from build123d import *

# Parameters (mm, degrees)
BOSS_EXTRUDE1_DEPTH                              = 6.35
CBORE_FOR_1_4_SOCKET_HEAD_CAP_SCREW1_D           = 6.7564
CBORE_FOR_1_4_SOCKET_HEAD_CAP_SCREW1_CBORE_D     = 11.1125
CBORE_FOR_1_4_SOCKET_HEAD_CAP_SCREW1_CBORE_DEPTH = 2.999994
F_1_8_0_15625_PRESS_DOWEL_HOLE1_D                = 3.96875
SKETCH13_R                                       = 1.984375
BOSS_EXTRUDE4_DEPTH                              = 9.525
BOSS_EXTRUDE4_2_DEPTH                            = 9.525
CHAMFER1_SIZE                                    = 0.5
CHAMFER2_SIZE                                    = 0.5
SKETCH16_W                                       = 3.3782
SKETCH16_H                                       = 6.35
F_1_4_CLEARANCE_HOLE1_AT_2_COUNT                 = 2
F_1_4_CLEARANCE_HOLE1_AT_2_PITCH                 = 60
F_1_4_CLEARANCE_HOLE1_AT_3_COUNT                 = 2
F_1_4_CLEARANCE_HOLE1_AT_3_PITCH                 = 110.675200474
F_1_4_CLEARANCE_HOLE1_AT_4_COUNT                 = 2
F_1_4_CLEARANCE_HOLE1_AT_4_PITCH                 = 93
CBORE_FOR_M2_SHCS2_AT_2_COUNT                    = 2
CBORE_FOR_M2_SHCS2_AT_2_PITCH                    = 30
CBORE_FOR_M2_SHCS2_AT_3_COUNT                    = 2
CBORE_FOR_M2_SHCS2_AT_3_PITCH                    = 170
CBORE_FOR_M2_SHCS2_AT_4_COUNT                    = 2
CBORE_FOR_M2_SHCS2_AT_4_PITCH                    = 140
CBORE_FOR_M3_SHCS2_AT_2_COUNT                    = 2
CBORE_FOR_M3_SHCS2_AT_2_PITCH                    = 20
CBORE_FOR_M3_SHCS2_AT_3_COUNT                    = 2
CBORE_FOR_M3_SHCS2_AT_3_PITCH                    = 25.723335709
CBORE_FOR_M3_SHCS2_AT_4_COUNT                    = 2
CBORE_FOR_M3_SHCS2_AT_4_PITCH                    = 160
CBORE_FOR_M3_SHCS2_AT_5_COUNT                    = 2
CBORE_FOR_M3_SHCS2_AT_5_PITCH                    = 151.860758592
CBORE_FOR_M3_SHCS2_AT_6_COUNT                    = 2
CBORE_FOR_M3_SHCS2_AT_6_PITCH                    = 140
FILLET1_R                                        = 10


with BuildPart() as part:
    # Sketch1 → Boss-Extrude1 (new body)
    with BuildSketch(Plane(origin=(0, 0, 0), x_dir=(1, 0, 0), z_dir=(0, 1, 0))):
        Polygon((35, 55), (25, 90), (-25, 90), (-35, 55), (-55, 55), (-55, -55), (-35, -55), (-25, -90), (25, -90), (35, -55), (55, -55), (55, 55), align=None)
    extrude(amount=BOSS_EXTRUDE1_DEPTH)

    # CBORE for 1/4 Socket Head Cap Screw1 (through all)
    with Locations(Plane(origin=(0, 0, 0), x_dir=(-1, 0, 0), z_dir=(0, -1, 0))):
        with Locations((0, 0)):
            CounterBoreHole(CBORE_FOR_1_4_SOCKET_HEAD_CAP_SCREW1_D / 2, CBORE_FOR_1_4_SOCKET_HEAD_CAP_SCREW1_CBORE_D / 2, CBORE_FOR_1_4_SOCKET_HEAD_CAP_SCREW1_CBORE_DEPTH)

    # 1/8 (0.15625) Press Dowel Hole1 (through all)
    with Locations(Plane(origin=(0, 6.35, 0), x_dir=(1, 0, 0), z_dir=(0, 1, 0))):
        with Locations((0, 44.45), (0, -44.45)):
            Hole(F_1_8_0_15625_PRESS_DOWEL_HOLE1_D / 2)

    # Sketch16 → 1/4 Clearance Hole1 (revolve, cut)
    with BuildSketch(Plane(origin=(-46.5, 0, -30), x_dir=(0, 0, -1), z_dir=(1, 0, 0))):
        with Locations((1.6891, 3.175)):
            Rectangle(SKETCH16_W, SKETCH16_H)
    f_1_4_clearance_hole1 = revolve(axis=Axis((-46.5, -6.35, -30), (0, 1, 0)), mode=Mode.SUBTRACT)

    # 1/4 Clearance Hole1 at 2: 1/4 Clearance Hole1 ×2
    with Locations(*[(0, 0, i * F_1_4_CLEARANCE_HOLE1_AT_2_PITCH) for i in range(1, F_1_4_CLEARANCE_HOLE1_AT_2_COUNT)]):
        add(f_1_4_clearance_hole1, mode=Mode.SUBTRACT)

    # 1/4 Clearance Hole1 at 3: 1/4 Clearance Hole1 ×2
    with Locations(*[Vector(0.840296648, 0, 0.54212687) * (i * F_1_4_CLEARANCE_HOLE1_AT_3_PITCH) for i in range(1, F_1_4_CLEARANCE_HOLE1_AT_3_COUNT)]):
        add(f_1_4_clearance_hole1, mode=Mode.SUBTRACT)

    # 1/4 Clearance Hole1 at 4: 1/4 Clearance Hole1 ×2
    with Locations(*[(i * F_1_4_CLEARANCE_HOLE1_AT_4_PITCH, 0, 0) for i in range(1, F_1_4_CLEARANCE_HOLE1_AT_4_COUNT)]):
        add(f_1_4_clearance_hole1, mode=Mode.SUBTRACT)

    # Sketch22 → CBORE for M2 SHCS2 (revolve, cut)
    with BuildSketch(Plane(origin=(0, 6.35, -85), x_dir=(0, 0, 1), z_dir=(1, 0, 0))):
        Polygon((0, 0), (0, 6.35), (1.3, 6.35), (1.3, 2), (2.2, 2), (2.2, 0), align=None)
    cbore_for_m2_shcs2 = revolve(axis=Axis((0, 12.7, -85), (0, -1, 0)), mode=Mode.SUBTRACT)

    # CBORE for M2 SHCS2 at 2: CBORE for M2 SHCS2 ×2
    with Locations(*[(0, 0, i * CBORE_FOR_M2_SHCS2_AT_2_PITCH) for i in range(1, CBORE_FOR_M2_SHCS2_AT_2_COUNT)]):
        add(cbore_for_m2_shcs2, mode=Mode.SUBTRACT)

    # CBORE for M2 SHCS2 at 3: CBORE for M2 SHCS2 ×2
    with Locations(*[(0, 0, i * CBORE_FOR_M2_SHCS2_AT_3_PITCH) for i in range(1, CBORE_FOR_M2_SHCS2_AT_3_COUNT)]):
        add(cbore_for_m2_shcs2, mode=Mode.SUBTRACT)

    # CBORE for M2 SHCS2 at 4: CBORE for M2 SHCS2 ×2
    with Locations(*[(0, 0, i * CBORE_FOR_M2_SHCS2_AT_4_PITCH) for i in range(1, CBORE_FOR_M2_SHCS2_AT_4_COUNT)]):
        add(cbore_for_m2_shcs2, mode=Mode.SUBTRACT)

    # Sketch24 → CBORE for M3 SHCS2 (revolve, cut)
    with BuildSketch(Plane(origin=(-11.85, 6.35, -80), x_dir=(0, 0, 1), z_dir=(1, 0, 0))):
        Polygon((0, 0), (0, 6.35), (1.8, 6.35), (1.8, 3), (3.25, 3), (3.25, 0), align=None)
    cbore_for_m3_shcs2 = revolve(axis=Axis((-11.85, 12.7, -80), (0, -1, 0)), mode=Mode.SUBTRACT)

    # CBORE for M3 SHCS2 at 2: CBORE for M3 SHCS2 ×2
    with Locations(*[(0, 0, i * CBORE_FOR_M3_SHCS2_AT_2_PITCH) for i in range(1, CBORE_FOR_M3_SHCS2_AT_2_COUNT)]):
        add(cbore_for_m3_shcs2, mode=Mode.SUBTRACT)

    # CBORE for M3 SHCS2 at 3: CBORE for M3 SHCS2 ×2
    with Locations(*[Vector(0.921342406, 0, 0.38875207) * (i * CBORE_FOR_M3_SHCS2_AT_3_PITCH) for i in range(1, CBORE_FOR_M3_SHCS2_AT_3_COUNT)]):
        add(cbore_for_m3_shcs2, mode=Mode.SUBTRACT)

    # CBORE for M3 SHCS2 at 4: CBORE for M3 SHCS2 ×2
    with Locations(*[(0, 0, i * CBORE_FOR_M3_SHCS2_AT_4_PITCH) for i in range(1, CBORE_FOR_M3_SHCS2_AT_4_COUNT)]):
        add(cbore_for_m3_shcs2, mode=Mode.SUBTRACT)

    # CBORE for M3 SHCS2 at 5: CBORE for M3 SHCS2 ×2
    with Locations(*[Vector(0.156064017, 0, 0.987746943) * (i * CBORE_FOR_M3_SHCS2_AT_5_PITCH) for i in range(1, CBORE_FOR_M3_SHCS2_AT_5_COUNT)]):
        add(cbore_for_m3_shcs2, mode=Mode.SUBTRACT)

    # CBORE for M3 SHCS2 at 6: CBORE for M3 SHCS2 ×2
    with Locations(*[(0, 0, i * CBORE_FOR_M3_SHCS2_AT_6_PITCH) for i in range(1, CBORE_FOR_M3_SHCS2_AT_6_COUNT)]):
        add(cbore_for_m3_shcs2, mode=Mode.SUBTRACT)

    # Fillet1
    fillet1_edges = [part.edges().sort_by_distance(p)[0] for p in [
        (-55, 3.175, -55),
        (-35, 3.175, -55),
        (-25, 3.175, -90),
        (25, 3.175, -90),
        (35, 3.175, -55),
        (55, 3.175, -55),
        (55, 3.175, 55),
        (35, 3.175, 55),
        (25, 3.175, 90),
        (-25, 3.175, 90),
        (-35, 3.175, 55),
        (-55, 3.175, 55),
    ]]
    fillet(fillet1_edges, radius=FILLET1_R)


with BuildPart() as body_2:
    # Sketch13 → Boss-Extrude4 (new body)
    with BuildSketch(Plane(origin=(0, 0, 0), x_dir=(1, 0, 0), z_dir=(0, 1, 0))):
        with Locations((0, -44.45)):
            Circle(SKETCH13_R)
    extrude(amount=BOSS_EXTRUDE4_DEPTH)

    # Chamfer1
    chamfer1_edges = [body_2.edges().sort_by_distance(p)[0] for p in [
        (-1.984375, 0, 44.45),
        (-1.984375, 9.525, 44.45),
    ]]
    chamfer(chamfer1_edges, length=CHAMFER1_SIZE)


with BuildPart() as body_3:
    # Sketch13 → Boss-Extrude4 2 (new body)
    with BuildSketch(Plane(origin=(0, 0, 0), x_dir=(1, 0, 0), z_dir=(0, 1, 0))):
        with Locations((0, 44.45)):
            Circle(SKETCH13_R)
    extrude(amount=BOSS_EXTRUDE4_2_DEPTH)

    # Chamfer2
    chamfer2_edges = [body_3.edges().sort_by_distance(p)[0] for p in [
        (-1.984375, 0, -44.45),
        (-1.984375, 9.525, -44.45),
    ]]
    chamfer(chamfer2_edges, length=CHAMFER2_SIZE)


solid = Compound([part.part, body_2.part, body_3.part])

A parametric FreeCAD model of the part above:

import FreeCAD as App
import Part
import Sketcher
Q = App.Units.Quantity


def edges_at(feature, points):
    """Names of the edges that pass closest to the given points."""
    edges = feature.Shape.Edges
    near = lambda p: min(range(len(edges)), key=lambda i: edges[i].distToShape(Part.Vertex(*p))[0])
    return sorted({f"Edge{near(p) + 1}" for p in points})


def add_polygon(sketch, points):
    """Adds a closed chain of lines whose ends are joined by coincident constraints."""
    first, n = sketch.GeometryCount, len(points)
    for a, b in zip(points, points[1:] + points[:1]):
        sketch.addGeometry(Part.LineSegment(App.Vector(*a, 0), App.Vector(*b, 0)), False)
    for i in range(n):
        sketch.addConstraint(Sketcher.Constraint("Coincident", first + i, 2, first + (i + 1) % n, 1))

doc = App.newDocument("Part")
body = doc.addObject("PartDesign::Body", "Body")

sketch1 = body.newObject("Sketcher::SketchObject", "Sketch")
sketch1.AttachmentSupport = (doc.getObject("XZ_Plane"), [""])
sketch1.MapMode = "FlatFace"
add_polygon(sketch1, [(35, -55), (25, -90), (-25, -90), (-35, -55), (-55, -55), (-55, 55), (-35, 55), (-25, 90), (25, 90), (35, 55), (55, 55), (55, -55)])
sketch1.addConstraint([
    Sketcher.Constraint("Horizontal", 1),
    Sketcher.Constraint("Horizontal", 3),
    Sketcher.Constraint("Vertical", 4),
    Sketcher.Constraint("Horizontal", 5),
    Sketcher.Constraint("Horizontal", 7),
    Sketcher.Constraint("Horizontal", 9),
    Sketcher.Constraint("Vertical", 10),
    Sketcher.Constraint("Horizontal", 11),
    Sketcher.Constraint("Symmetric", 0, 2, 6, 2, -1, 1),
    Sketcher.Constraint("Symmetric", 2, 2, 8, 2, -1, 1),
    Sketcher.Constraint("Symmetric", 4, 2, 10, 2, -1, 1),
    Sketcher.Constraint("Symmetric", 5, 2, 8, 2, -2),
    Sketcher.Constraint("Parallel", 0, 6),
    Sketcher.Constraint("Parallel", 2, 8),
    Sketcher.Constraint("Vertical", 1, 2, 6, 2),
    Sketcher.Constraint("DistanceX", 1, 2, 1, 1, Q("50 mm")),
    Sketcher.Constraint("DistanceX", 3, 2, 3, 1, Q("20 mm")),
    Sketcher.Constraint("DistanceY", 4, 1, 4, 2, Q("110 mm")),
    Sketcher.Constraint("DistanceY", 0, 2, -1, 1, Q("90 mm")),
    Sketcher.Constraint("DistanceX", 2, 2, -1, 1, Q("35 mm")),
])
pad1 = body.newObject("PartDesign::Pad", "Pad")
pad1.Profile = sketch1
pad1.Length = 6.35
pad1.Reversed = True

sketch2 = body.newObject("Sketcher::SketchObject", "Sketch001")
sketch2.AttachmentSupport = (doc.getObject("XZ_Plane"), [""])
sketch2.MapMode = "FlatFace"
sketch2.addGeometry(Part.Circle(App.Vector(0, 0, 0), App.Vector(0, 0, 1), 3.3782), False)
sketch2.addConstraint([
    Sketcher.Constraint("Coincident", 0, 3, -1, 1),
    Sketcher.Constraint("Diameter", 0, Q("6.7564 mm")),
])
doc.recompute()
hole = body.newObject("PartDesign::Hole", "Hole")
hole.Profile = sketch2
hole.ThreadType = "None"
hole.Diameter = 6.7564
hole.DepthType = "ThroughAll"
hole.HoleCutType = "Counterbore"
hole.HoleCutDiameter = 11.1125
hole.HoleCutDepth = 2.999994

sketch3 = body.newObject("Sketcher::SketchObject", "Sketch002")
sketch3.AttachmentSupport = (doc.getObject("XZ_Plane"), [""])
sketch3.MapMode = "FlatFace"
sketch3.AttachmentOffset = App.Placement(App.Vector(0, 0, -6.35), App.Rotation())
sketch3.addGeometry([
    Part.Circle(App.Vector(0, -44.45, 0), App.Vector(0, 0, 1), 1.984375),
    Part.Circle(App.Vector(0, 44.45, 0), App.Vector(0, 0, 1), 1.984375),
], False)
sketch3.addConstraint([
    Sketcher.Constraint("Equal", 0, 1),
    Sketcher.Constraint("Symmetric", 0, 3, 1, 3, -1, 1),
    Sketcher.Constraint("PointOnObject", 0, 3, -2),
    Sketcher.Constraint("DistanceY", 0, 3, 1, 3, Q("88.9 mm")),
    Sketcher.Constraint("Diameter", 0, Q("3.96875 mm")),
])
doc.recompute()
hole2 = body.newObject("PartDesign::Hole", "Hole001")
hole2.Profile = sketch3
hole2.ThreadType = "None"
hole2.Diameter = 3.96875
hole2.DepthType = "ThroughAll"
hole2.Reversed = True

sketch4 = body.newObject("Sketcher::SketchObject", "Sketch003")
sketch4.AttachmentSupport = (doc.getObject("YZ_Plane"), [""])
sketch4.MapMode = "FlatFace"
sketch4.AttachmentOffset = App.Placement(App.Vector(0, 0, -46.5), App.Rotation())
add_polygon(sketch4, [(6.35, -30), (0, -30), (0, -33.3782), (6.35, -33.3782)])
sketch4.addGeometry(Part.LineSegment(App.Vector(0, -30, 0), App.Vector(6.35, -30, 0)), True)
sketch4.addConstraint([
    Sketcher.Constraint("Horizontal", 0),
    Sketcher.Constraint("Vertical", 1),
    Sketcher.Constraint("Horizontal", 2),
    Sketcher.Constraint("Vertical", 3),
    Sketcher.Constraint("Horizontal", 4),
    Sketcher.Constraint("Coincident", 4, 1, 0, 2),
    Sketcher.Constraint("PointOnObject", 0, 2, -2),
    Sketcher.Constraint("Vertical", 2, 2, 4, 2),
    Sketcher.Constraint("DistanceY", 0, 2, -1, 1, Q("30 mm")),
    Sketcher.Constraint("DistanceX", 0, 2, 0, 1, Q("6.35 mm")),
    Sketcher.Constraint("DistanceY", 1, 2, 1, 1, Q("3.3782 mm")),
])
groove = body.newObject("PartDesign::Groove", "Groove")
groove.Profile = sketch4
groove.ReferenceAxis = (sketch4, ["Axis0"])
groove.Angle = 360
doc.recompute()

linearpattern = body.newObject("PartDesign::LinearPattern", "LinearPattern")
linearpattern.Originals = [groove]
linearpattern.Direction = (doc.getObject("Z_Axis"), [""])
linearpattern.Mode = "offset"
linearpattern.Offset = 60
linearpattern.Occurrences = 2
body.Tip = linearpattern
doc.recompute()

datumline = body.newObject("PartDesign::Line", "DatumLine")
datumline.Placement = App.Placement(App.Vector(0, 0, 0), App.Rotation(App.Vector(0, 0, 1), App.Vector(0.840296648, 0, 0.54212687)))
linearpattern2 = body.newObject("PartDesign::LinearPattern", "LinearPattern001")
linearpattern2.Originals = [groove]
linearpattern2.Direction = (datumline, [""])
linearpattern2.Mode = "offset"
linearpattern2.Offset = 110.6752
linearpattern2.Occurrences = 2
body.Tip = linearpattern2
doc.recompute()

linearpattern3 = body.newObject("PartDesign::LinearPattern", "LinearPattern002")
linearpattern3.Originals = [groove]
linearpattern3.Direction = (doc.getObject("X_Axis"), [""])
linearpattern3.Mode = "offset"
linearpattern3.Offset = 93
linearpattern3.Occurrences = 2
body.Tip = linearpattern3

sketch5 = body.newObject("Sketcher::SketchObject", "Sketch004")
sketch5.AttachmentSupport = (doc.getObject("YZ_Plane"), [""])
sketch5.MapMode = "FlatFace"
add_polygon(sketch5, [(0, -85), (6.35, -85), (6.35, -82.8), (4.35, -82.8), (4.35, -83.7), (0, -83.7)])
sketch5.addGeometry(Part.LineSegment(App.Vector(6.35, -85, 0), App.Vector(0, -85, 0)), True)
sketch5.addConstraint([
    Sketcher.Constraint("Horizontal", 0),
    Sketcher.Constraint("Vertical", 1),
    Sketcher.Constraint("Horizontal", 2),
    Sketcher.Constraint("Vertical", 3),
    Sketcher.Constraint("Horizontal", 4),
    Sketcher.Constraint("Vertical", 5),
    Sketcher.Constraint("Horizontal", 6),
    Sketcher.Constraint("Coincident", 6, 1, 0, 2),
    Sketcher.Constraint("PointOnObject", 4, 2, -2),
    Sketcher.Constraint("PointOnObject", 6, 2, -2),
    Sketcher.Constraint("DistanceX", 2, 2, 2, 1, Q("2 mm")),
    Sketcher.Constraint("DistanceY", 1, 1, 1, 2, Q("2.2 mm")),
    Sketcher.Constraint("DistanceY", 3, 2, 3, 1, Q("0.9 mm")),
    Sketcher.Constraint("DistanceY", 0, 2, -1, 1, Q("85 mm")),
    Sketcher.Constraint("DistanceX", 0, 1, 0, 2, Q("6.35 mm")),
])
groove2 = body.newObject("PartDesign::Groove", "Groove001")
groove2.Profile = sketch5
groove2.ReferenceAxis = (sketch5, ["Axis0"])
groove2.Angle = 360
doc.recompute()

linearpattern4 = body.newObject("PartDesign::LinearPattern", "LinearPattern003")
linearpattern4.Originals = [groove2]
linearpattern4.Direction = (doc.getObject("Z_Axis"), [""])
linearpattern4.Mode = "offset"
linearpattern4.Offset = 30
linearpattern4.Occurrences = 2
body.Tip = linearpattern4
doc.recompute()

linearpattern5 = body.newObject("PartDesign::LinearPattern", "LinearPattern004")
linearpattern5.Originals = [groove2]
linearpattern5.Direction = (doc.getObject("Z_Axis"), [""])
linearpattern5.Mode = "offset"
linearpattern5.Offset = 170
linearpattern5.Occurrences = 2
body.Tip = linearpattern5
doc.recompute()

linearpattern6 = body.newObject("PartDesign::LinearPattern", "LinearPattern005")
linearpattern6.Originals = [groove2]
linearpattern6.Direction = (doc.getObject("Z_Axis"), [""])
linearpattern6.Mode = "offset"
linearpattern6.Offset = 140
linearpattern6.Occurrences = 2
body.Tip = linearpattern6

sketch6 = body.newObject("Sketcher::SketchObject", "Sketch005")
sketch6.AttachmentSupport = (doc.getObject("YZ_Plane"), [""])
sketch6.MapMode = "FlatFace"
sketch6.AttachmentOffset = App.Placement(App.Vector(0, 0, -11.85), App.Rotation())
add_polygon(sketch6, [(0, -80), (6.35, -80), (6.35, -76.75), (3.35, -76.75), (3.35, -78.2), (0, -78.2)])
sketch6.addGeometry(Part.LineSegment(App.Vector(6.35, -80, 0), App.Vector(0, -80, 0)), True)
sketch6.addConstraint([
    Sketcher.Constraint("Horizontal", 0),
    Sketcher.Constraint("Vertical", 1),
    Sketcher.Constraint("Horizontal", 2),
    Sketcher.Constraint("Vertical", 3),
    Sketcher.Constraint("Horizontal", 4),
    Sketcher.Constraint("Vertical", 5),
    Sketcher.Constraint("Horizontal", 6),
    Sketcher.Constraint("Coincident", 6, 1, 0, 2),
    Sketcher.Constraint("PointOnObject", 4, 2, -2),
    Sketcher.Constraint("PointOnObject", 6, 2, -2),
    Sketcher.Constraint("DistanceX", 2, 2, 2, 1, Q("3 mm")),
    Sketcher.Constraint("DistanceY", 5, 2, 5, 1, Q("1.8 mm")),
    Sketcher.Constraint("DistanceY", 0, 2, -1, 1, Q("80 mm")),
    Sketcher.Constraint("DistanceX", 0, 1, 0, 2, Q("6.35 mm")),
    Sketcher.Constraint("DistanceY", 1, 1, 1, 2, Q("3.25 mm")),
])
groove3 = body.newObject("PartDesign::Groove", "Groove002")
groove3.Profile = sketch6
groove3.ReferenceAxis = (sketch6, ["Axis0"])
groove3.Angle = 360
doc.recompute()

linearpattern7 = body.newObject("PartDesign::LinearPattern", "LinearPattern006")
linearpattern7.Originals = [groove3]
linearpattern7.Direction = (doc.getObject("Z_Axis"), [""])
linearpattern7.Mode = "offset"
linearpattern7.Offset = 20
linearpattern7.Occurrences = 2
body.Tip = linearpattern7
doc.recompute()

datumline2 = body.newObject("PartDesign::Line", "DatumLine001")
datumline2.Placement = App.Placement(App.Vector(0, 0, 0), App.Rotation(App.Vector(0, 0, 1), App.Vector(0.921342406, 0, 0.38875207)))
linearpattern8 = body.newObject("PartDesign::LinearPattern", "LinearPattern007")
linearpattern8.Originals = [groove3]
linearpattern8.Direction = (datumline2, [""])
linearpattern8.Mode = "offset"
linearpattern8.Offset = 25.723336
linearpattern8.Occurrences = 2
body.Tip = linearpattern8
doc.recompute()

linearpattern9 = body.newObject("PartDesign::LinearPattern", "LinearPattern008")
linearpattern9.Originals = [groove3]
linearpattern9.Direction = (doc.getObject("Z_Axis"), [""])
linearpattern9.Mode = "offset"
linearpattern9.Offset = 160
linearpattern9.Occurrences = 2
body.Tip = linearpattern9
doc.recompute()

datumline3 = body.newObject("PartDesign::Line", "DatumLine002")
datumline3.Placement = App.Placement(App.Vector(0, 0, 0), App.Rotation(App.Vector(0, 0, 1), App.Vector(0.156064017, 0, 0.987746943)))
linearpattern10 = body.newObject("PartDesign::LinearPattern", "LinearPattern009")
linearpattern10.Originals = [groove3]
linearpattern10.Direction = (datumline3, [""])
linearpattern10.Mode = "offset"
linearpattern10.Offset = 151.860759
linearpattern10.Occurrences = 2
body.Tip = linearpattern10
doc.recompute()

linearpattern11 = body.newObject("PartDesign::LinearPattern", "LinearPattern010")
linearpattern11.Originals = [groove3]
linearpattern11.Direction = (doc.getObject("Z_Axis"), [""])
linearpattern11.Mode = "offset"
linearpattern11.Offset = 140
linearpattern11.Occurrences = 2
body.Tip = linearpattern11
doc.recompute()

fillet = body.newObject("PartDesign::Fillet", "Fillet")
fillet.Base = (linearpattern11, edges_at(linearpattern11, [
    (-55, 3.175, -55),
    (-35, 3.175, -55),
    (-25, 3.175, -90),
    (25, 3.175, -90),
    (35, 3.175, -55),
    (55, 3.175, -55),
    (55, 3.175, 55),
    (35, 3.175, 55),
    (25, 3.175, 90),
    (-25, 3.175, 90),
    (-35, 3.175, 55),
    (-55, 3.175, 55),
]))
fillet.Radius = 10
body2 = doc.addObject("PartDesign::Body", "Body001")

sketch7 = body2.newObject("Sketcher::SketchObject", "Sketch006")
sketch7.AttachmentSupport = (doc.getObject("XZ_Plane001"), [""])
sketch7.MapMode = "FlatFace"
sketch7.addGeometry(Part.Circle(App.Vector(0, 44.45, 0), App.Vector(0, 0, 1), 1.984375), False)
sketch7.addConstraint([
    Sketcher.Constraint("PointOnObject", 0, 3, -2),
    Sketcher.Constraint("Diameter", 0, Q("3.96875 mm")),
    Sketcher.Constraint("DistanceY", -1, 1, 0, 3, Q("44.45 mm")),
])
pad2 = body2.newObject("PartDesign::Pad", "Pad001")
pad2.Profile = sketch7
pad2.Length = 9.525
pad2.Reversed = True
doc.recompute()

chamfer = body2.newObject("PartDesign::Chamfer", "Chamfer")
chamfer.Base = (pad2, edges_at(pad2, [(-1.984, 0, 44.45), (-1.984, 9.525, 44.45)]))
chamfer.Size = 0.5
body3 = doc.addObject("PartDesign::Body", "Body002")

sketch8 = body3.newObject("Sketcher::SketchObject", "Sketch007")
sketch8.AttachmentSupport = (doc.getObject("XZ_Plane002"), [""])
sketch8.MapMode = "FlatFace"
sketch8.addGeometry(Part.Circle(App.Vector(0, -44.45, 0), App.Vector(0, 0, 1), 1.984375), False)
sketch8.addConstraint([
    Sketcher.Constraint("PointOnObject", 0, 3, -2),
    Sketcher.Constraint("Diameter", 0, Q("3.96875 mm")),
    Sketcher.Constraint("DistanceY", 0, 3, -1, 1, Q("44.45 mm")),
])
pad3 = body3.newObject("PartDesign::Pad", "Pad002")
pad3.Profile = sketch8
pad3.Length = 9.525
pad3.Reversed = True
doc.recompute()

chamfer2 = body3.newObject("PartDesign::Chamfer", "Chamfer001")
chamfer2.Base = (pad3, edges_at(pad3, [(-1.984, 0, -44.45), (-1.984, 9.525, -44.45)]))
chamfer2.Size = 0.5

doc.recompute()
